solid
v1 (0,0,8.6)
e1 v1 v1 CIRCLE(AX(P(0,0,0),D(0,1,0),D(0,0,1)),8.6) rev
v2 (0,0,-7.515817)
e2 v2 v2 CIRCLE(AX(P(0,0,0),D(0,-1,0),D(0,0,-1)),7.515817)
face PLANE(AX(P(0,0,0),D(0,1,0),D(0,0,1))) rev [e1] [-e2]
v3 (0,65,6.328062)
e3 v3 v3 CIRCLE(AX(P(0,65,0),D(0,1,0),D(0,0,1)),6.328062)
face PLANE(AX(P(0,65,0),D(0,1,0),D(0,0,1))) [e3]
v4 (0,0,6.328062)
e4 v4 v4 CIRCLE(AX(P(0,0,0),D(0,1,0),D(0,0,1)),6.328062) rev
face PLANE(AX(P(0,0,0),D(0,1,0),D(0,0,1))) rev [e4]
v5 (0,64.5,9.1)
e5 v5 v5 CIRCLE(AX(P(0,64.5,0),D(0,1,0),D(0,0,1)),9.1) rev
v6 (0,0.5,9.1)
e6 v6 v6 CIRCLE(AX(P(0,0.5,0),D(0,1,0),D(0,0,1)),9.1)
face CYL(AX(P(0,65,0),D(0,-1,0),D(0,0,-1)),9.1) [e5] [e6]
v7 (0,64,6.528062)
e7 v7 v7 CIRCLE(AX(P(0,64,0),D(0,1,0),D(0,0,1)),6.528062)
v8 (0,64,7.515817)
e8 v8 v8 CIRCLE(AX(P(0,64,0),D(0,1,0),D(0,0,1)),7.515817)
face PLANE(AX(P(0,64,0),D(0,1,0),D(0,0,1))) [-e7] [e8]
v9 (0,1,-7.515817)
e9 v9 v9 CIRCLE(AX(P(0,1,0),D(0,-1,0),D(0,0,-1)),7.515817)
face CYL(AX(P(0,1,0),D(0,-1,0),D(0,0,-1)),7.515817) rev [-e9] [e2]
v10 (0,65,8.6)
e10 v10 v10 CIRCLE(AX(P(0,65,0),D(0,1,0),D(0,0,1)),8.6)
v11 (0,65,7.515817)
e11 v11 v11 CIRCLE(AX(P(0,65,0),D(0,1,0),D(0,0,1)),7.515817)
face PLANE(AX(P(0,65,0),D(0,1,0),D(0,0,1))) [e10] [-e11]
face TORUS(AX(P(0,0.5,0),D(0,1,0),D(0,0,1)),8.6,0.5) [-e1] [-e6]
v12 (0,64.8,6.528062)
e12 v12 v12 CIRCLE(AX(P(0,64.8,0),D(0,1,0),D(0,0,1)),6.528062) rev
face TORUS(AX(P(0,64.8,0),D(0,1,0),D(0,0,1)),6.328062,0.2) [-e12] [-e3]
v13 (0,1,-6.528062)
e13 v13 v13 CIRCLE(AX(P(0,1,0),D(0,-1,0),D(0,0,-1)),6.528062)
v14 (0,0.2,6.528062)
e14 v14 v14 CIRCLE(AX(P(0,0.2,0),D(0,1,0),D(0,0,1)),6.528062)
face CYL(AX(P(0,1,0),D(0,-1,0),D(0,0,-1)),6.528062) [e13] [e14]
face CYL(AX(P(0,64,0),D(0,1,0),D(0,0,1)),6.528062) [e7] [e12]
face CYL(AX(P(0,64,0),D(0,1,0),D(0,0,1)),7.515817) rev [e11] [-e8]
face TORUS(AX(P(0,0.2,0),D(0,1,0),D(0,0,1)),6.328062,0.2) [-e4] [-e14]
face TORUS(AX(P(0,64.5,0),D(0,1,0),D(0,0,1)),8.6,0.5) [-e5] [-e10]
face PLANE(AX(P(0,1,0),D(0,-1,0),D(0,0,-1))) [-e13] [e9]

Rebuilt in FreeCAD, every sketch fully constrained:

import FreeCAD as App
import Part
import Sketcher
from FreeCAD import Vector
Q = App.Units.Quantity


def edges_at(feature, points):
    """Names of the edges that pass closest to the given points."""
    edges = feature.Shape.Edges
    near = lambda p: min(range(len(edges)), key=lambda i: edges[i].distToShape(Part.Vertex(*p))[0])
    return sorted({f"Edge{near(p) + 1}" for p in points})

doc = App.newDocument("Part")
body = doc.addObject("PartDesign::Body", "Body")

# Sketch on XZ plane
sketch1 = body.newObject("Sketcher::SketchObject", "Sketch")
sketch1.AttachmentSupport = (doc.getObject("XZ_Plane"), [""])
sketch1.MapMode = "FlatFace"
sketch1.addGeometry(Part.Circle(Vector(0, 0, 0), Vector(0, 0, 1), 9), False)
sketch1.addConstraint(Sketcher.Constraint("Coincident", 0, 3, -1, 1))
sketch1.addConstraint(Sketcher.Constraint("Diameter", 0, Q("18.2 mm")))
pad1 = body.newObject("PartDesign::Pad", "Pad")
pad1.Profile = sketch1
pad1.Length = 65
pad1.Reversed = True

# Sketch on XZ plane
sketch2 = body.newObject("Sketcher::SketchObject", "Sketch001")
sketch2.AttachmentSupport = (doc.getObject("XZ_Plane"), [""])
sketch2.MapMode = "FlatFace"
sketch2.AttachmentOffset = App.Placement(Vector(0, 0, -65), App.Rotation())
sketch2.addGeometry(Part.Circle(Vector(0, 0, 0), Vector(0, 0, 1), 8), False)
sketch2.addGeometry(Part.Circle(Vector(0, 0, 0), Vector(0, 0, 1), 7), False)
sketch2.addConstraint(Sketcher.Constraint("Coincident", 0, 3, -1, 1))
sketch2.addConstraint(Sketcher.Constraint("Coincident", 1, 3, -1, 1))
sketch2.addConstraint(Sketcher.Constraint("Diameter", 0, Q("15.031633 mm")))
sketch2.addConstraint(Sketcher.Constraint("Diameter", 1, Q("13.056124 mm")))
pocket1 = body.newObject("PartDesign::Pocket", "Pocket")
pocket1.Profile = sketch2
pocket1.Length = 1
pocket1.Reversed = True
doc.recompute()

fillet = body.newObject("PartDesign::Fillet", "Fillet")
fillet.Base = (pocket1, edges_at(pocket1, [(-9.1, 0, 0), (-9.1, 65, 0)]))
fillet.Radius = 0.5

# Sketch on XZ plane
sketch3 = body.newObject("Sketcher::SketchObject", "Sketch002")
sketch3.AttachmentSupport = (doc.getObject("XZ_Plane"), [""])
sketch3.MapMode = "FlatFace"
sketch3.addGeometry(Part.Circle(Vector(0, 0, 0), Vector(0, 0, 1), 8), False)
sketch3.addGeometry(Part.Circle(Vector(0, 0, 0), Vector(0, 0, 1), 7), False)
sketch3.addConstraint(Sketcher.Constraint("Coincident", 0, 3, -1, 1))
sketch3.addConstraint(Sketcher.Constraint("Coincident", 1, 3, -1, 1))
sketch3.addConstraint(Sketcher.Constraint("Diameter", 0, Q("15.031633 mm")))
sketch3.addConstraint(Sketcher.Constraint("Diameter", 1, Q("13.056124 mm")))
pocket2 = body.newObject("PartDesign::Pocket", "Pocket001")
pocket2.Profile = sketch3
pocket2.Length = 1
doc.recompute()

fillet2 = body.newObject("PartDesign::Fillet", "Fillet001")
fillet2.Base = (pocket2, edges_at(pocket2, [(-6.528, 0, 0), (-6.528, 65, 0)]))
fillet2.Radius = 0.2

doc.recompute()
